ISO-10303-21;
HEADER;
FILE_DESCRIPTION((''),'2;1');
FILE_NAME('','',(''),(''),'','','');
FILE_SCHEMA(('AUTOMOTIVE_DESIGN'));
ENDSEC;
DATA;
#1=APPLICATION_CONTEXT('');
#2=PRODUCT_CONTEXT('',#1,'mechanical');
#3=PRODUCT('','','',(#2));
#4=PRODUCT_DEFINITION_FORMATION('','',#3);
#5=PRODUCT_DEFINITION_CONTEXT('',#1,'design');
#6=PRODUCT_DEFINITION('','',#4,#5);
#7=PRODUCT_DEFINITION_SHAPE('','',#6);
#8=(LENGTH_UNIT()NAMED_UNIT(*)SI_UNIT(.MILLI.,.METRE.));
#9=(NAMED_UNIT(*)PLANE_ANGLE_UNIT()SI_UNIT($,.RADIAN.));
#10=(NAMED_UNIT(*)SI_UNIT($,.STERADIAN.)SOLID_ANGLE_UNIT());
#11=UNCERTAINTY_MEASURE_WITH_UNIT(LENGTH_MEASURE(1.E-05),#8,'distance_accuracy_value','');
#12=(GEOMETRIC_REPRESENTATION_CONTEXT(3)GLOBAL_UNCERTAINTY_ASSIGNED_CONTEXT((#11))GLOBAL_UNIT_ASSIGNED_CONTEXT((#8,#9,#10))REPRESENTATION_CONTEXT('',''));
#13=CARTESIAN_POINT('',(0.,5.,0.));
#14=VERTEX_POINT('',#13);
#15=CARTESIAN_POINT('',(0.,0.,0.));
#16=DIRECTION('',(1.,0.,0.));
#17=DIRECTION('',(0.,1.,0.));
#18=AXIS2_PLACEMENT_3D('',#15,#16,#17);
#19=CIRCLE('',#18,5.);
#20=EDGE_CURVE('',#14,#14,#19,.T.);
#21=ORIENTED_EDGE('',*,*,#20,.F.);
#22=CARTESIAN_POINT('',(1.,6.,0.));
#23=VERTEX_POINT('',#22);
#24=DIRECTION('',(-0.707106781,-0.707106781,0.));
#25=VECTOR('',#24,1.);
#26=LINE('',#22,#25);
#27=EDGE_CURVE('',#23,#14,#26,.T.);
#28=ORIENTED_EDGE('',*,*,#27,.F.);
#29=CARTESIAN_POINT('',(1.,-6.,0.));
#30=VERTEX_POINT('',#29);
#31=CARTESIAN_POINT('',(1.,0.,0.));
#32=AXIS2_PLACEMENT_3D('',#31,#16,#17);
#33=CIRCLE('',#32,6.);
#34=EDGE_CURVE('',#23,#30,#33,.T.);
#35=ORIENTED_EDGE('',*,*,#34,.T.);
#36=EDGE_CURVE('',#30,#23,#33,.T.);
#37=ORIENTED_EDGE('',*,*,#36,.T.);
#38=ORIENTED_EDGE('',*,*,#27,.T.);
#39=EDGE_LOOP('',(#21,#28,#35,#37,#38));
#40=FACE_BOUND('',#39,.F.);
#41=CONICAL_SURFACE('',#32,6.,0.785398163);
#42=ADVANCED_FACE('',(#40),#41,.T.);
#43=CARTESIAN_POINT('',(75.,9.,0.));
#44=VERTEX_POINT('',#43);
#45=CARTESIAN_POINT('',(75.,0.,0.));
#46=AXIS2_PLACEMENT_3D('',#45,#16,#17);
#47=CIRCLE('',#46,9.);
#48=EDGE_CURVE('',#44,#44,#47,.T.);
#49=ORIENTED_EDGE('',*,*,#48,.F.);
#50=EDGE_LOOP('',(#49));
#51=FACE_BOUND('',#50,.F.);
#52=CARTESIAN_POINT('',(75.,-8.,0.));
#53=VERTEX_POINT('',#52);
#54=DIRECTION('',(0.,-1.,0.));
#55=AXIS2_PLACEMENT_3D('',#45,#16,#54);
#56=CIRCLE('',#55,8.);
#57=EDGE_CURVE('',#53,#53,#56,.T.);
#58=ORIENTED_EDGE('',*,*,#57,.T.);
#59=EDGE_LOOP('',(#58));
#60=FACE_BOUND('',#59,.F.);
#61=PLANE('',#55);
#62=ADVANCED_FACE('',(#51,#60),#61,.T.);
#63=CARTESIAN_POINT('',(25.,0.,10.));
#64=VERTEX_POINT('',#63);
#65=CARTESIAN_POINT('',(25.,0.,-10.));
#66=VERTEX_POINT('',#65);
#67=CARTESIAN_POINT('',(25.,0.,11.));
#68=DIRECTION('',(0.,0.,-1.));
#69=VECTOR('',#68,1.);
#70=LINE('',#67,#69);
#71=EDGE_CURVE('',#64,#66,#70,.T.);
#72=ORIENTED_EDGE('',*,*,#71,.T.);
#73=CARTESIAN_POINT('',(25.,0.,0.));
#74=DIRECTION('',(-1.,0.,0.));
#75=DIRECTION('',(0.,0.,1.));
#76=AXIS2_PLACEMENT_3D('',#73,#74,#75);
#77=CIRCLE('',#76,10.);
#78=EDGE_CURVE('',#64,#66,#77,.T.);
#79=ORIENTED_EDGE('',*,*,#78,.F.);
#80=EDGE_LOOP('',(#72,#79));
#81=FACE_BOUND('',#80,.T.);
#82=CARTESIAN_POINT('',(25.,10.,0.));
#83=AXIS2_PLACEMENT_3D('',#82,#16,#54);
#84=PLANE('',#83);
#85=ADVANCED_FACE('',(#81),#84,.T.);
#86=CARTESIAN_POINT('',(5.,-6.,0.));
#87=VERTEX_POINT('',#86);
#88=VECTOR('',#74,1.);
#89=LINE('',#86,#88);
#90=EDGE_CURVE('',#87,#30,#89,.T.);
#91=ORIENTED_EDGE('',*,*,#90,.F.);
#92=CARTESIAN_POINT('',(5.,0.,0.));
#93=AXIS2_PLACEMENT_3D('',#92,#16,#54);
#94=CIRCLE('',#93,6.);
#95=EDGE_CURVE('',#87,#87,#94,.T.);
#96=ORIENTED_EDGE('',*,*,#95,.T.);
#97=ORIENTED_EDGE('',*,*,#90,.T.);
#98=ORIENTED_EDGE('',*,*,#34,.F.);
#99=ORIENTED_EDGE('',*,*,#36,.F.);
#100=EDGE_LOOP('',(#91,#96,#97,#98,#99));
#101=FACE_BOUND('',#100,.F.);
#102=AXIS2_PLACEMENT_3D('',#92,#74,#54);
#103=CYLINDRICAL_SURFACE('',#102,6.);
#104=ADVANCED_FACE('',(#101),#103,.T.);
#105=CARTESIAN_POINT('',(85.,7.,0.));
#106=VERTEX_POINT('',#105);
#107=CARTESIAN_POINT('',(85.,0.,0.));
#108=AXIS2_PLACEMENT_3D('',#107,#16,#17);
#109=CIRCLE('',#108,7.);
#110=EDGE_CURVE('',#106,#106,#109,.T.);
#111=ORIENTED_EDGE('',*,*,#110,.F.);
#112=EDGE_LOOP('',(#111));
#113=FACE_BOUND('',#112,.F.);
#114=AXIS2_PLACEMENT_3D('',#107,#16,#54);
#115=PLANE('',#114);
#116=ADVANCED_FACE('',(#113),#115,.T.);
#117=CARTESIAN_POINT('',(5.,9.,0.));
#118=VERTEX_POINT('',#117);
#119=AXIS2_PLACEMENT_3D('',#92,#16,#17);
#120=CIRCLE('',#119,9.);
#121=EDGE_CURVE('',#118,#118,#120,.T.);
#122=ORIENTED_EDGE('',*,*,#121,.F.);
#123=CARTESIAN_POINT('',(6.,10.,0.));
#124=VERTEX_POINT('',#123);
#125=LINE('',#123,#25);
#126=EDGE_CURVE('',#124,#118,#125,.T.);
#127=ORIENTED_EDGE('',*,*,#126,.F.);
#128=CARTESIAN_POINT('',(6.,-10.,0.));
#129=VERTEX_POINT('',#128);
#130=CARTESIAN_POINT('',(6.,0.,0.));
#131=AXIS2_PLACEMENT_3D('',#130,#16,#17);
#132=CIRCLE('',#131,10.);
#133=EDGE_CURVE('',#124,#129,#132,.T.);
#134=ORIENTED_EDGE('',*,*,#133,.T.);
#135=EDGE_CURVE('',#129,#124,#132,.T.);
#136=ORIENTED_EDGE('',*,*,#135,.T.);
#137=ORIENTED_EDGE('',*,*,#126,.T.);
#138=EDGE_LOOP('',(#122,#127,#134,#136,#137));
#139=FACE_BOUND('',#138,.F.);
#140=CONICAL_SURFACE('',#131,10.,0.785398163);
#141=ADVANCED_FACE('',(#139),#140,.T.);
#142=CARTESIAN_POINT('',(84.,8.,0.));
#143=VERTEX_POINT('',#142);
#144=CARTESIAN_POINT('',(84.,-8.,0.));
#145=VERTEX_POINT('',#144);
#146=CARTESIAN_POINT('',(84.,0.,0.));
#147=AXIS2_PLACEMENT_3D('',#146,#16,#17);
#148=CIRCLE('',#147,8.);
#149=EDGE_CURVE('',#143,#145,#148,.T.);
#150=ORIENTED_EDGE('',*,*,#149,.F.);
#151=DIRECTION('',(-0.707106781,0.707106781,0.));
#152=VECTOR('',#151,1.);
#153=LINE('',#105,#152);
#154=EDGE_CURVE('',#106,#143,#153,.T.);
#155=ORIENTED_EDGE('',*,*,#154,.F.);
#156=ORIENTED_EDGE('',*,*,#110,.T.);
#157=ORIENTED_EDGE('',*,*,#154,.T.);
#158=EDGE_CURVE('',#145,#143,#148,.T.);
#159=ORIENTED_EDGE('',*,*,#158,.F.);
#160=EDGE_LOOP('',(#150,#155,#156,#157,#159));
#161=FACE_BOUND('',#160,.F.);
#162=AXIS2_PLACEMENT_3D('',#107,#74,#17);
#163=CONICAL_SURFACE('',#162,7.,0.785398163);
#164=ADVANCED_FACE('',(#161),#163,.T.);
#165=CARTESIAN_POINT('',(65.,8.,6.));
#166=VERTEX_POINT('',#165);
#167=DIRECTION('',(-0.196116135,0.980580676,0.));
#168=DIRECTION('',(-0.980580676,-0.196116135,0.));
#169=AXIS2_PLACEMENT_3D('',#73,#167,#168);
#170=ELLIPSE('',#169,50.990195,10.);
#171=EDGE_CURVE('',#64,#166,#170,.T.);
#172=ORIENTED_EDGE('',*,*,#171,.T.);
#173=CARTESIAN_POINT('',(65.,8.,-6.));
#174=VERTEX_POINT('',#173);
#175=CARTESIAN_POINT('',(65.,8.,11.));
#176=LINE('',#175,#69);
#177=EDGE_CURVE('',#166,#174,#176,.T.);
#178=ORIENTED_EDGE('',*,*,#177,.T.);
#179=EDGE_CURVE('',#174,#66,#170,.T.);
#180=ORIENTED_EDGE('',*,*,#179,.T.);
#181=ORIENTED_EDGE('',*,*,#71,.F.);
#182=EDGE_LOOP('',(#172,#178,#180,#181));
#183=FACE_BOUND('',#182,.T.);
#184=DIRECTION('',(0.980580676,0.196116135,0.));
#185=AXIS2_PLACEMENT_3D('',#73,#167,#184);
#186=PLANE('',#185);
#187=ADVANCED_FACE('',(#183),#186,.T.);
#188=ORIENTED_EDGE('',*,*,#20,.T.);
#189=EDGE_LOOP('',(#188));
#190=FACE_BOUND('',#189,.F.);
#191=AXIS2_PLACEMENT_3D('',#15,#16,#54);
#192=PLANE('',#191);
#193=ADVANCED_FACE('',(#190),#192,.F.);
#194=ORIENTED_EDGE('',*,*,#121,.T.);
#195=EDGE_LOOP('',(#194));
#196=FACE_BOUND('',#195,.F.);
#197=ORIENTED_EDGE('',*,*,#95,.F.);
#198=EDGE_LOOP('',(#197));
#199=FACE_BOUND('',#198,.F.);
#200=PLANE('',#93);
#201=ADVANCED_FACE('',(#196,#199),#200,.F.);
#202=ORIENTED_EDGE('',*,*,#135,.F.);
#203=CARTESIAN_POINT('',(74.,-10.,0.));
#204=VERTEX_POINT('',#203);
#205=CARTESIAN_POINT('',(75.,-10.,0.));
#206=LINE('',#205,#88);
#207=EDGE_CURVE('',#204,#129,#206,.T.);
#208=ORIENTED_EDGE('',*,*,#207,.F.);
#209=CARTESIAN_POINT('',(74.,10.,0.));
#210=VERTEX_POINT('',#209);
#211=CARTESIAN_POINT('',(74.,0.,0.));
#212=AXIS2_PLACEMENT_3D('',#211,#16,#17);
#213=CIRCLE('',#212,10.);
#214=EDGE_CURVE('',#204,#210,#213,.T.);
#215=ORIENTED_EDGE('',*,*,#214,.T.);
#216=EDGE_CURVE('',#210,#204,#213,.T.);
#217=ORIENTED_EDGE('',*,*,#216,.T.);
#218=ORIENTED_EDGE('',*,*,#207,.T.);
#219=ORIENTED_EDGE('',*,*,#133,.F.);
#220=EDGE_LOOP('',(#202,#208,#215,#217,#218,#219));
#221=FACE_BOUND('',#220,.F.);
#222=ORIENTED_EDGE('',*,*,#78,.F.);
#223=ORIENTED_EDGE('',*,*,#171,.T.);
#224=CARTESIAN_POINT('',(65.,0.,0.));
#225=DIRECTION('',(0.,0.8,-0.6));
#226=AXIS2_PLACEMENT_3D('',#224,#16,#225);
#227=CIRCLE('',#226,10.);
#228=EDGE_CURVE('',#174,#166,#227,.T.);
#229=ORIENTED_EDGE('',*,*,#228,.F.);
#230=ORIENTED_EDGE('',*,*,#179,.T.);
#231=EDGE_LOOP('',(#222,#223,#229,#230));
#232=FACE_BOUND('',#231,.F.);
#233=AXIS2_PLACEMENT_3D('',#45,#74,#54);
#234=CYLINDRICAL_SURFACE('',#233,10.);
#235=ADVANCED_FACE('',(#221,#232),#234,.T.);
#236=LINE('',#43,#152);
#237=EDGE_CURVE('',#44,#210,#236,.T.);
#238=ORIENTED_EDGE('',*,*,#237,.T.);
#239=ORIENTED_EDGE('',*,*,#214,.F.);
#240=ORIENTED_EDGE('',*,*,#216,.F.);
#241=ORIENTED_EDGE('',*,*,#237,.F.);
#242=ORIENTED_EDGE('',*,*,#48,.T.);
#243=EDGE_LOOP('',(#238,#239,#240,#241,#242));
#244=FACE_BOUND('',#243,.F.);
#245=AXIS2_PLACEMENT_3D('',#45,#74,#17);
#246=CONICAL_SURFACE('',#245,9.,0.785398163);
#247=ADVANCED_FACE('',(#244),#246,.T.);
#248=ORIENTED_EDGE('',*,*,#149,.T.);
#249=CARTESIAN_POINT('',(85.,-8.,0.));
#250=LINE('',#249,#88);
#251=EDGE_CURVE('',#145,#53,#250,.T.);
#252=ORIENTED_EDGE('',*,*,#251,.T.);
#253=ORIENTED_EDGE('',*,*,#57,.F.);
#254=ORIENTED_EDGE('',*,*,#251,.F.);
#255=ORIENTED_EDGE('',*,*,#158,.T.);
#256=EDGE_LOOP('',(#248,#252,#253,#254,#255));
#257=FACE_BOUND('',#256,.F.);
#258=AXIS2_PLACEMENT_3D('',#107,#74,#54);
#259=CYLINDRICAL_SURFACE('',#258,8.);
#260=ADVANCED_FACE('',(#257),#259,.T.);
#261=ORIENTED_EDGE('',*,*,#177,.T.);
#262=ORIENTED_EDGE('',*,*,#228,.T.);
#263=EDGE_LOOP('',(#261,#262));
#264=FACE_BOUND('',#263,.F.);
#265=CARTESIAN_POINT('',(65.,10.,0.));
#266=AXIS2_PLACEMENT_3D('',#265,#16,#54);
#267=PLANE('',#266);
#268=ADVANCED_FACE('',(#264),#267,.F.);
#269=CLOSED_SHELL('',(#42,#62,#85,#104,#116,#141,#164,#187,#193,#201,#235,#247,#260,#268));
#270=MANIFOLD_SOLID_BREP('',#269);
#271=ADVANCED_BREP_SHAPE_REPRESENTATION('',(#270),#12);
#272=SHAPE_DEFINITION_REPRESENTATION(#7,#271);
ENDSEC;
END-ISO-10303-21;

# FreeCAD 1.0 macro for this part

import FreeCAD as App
import Part
import Sketcher
Q = App.Units.Quantity

doc = App.newDocument("Part")
body = doc.addObject("PartDesign::Body", "Body")

sketch1 = doc.addObject("Sketcher::SketchObject", "Sketch")
body.addObject(sketch1)
sketch1.AttachmentSupport = (doc.XY_Plane, [""])
sketch1.MapMode = "FlatFace"
sketch1.addGeometry(Part.LineSegment(App.Vector(0, 0, 0), App.Vector(0, -6, 0)), False)
sketch1.addGeometry(Part.LineSegment(App.Vector(0, -6, 0), App.Vector(5, -6, 0)), False)
sketch1.addGeometry(Part.LineSegment(App.Vector(5, -6, 0), App.Vector(5, -10, 0)), False)
sketch1.addGeometry(Part.LineSegment(App.Vector(5, -10, 0), App.Vector(75, -10, 0)), False)
sketch1.addGeometry(Part.LineSegment(App.Vector(75, -10, 0), App.Vector(75, -8, 0)), False)
sketch1.addGeometry(Part.LineSegment(App.Vector(75, -8, 0), App.Vector(85, -8, 0)), False)
sketch1.addGeometry(Part.LineSegment(App.Vector(85, -8, 0), App.Vector(85, 0, 0)), False)
sketch1.addGeometry(Part.LineSegment(App.Vector(85, 0, 0), App.Vector(0, 0, 0)), False)
sketch1.addConstraint(Sketcher.Constraint("Coincident", 0, 2, 1, 1))
sketch1.addConstraint(Sketcher.Constraint("Coincident", 1, 2, 2, 1))
sketch1.addConstraint(Sketcher.Constraint("Coincident", 2, 2, 3, 1))
sketch1.addConstraint(Sketcher.Constraint("Coincident", 3, 2, 4, 1))
sketch1.addConstraint(Sketcher.Constraint("Coincident", 4, 2, 5, 1))
sketch1.addConstraint(Sketcher.Constraint("Coincident", 5, 2, 6, 1))
sketch1.addConstraint(Sketcher.Constraint("Coincident", 6, 2, 7, 1))
sketch1.addConstraint(Sketcher.Constraint("Coincident", 7, 2, 0, 1))
sketch1.addConstraint(Sketcher.Constraint("Vertical", 0))
sketch1.addConstraint(Sketcher.Constraint("Horizontal", 1))
sketch1.addConstraint(Sketcher.Constraint("Vertical", 2))
sketch1.addConstraint(Sketcher.Constraint("Horizontal", 3))
sketch1.addConstraint(Sketcher.Constraint("Vertical", 4))
sketch1.addConstraint(Sketcher.Constraint("Horizontal", 5))
sketch1.addConstraint(Sketcher.Constraint("Vertical", 6))
sketch1.addConstraint(Sketcher.Constraint("Horizontal", 7))
sketch1.addConstraint(Sketcher.Constraint("Coincident", 7, 2, -1, 1))
sketch1.addConstraint(Sketcher.Constraint("DistanceX", 1, 1, 1, 2, Q("5 mm")))
sketch1.addConstraint(Sketcher.Constraint("DistanceX", 3, 1, 3, 2, Q("70 mm")))
sketch1.addConstraint(Sketcher.Constraint("DistanceX", 5, 1, 5, 2, Q("10 mm")))
sketch1.addConstraint(Sketcher.Constraint("DistanceY", 0, 2, 0, 1, Q("6 mm")))
sketch1.addConstraint(Sketcher.Constraint("DistanceY", 6, 1, 6, 2, Q("8 mm")))
sketch1.addConstraint(Sketcher.Constraint("DistanceY", 2, 2, -1, 1, Q("10 mm")))
revolution = doc.addObject("PartDesign::Revolution", "Revolution")
body.addObject(revolution)
revolution.Profile = sketch1
revolution.ReferenceAxis = (sketch1, ["H_Axis"])
revolution.Angle = 360

sketch2 = doc.addObject("Sketcher::SketchObject", "Sketch001")
body.addObject(sketch2)
sketch2.AttachmentSupport = (doc.XY_Plane, [""])
sketch2.MapMode = "FlatFace"
sketch2.addGeometry(Part.LineSegment(App.Vector(5, 10, 0), App.Vector(5, 9, 0)), False)
sketch2.addGeometry(Part.LineSegment(App.Vector(5, 9, 0), App.Vector(6, 10, 0)), False)
sketch2.addGeometry(Part.LineSegment(App.Vector(6, 10, 0), App.Vector(5, 10, 0)), False)
sketch2.addGeometry(Part.LineSegment(App.Vector(74, 10, 0), App.Vector(75, 9, 0)), False)
sketch2.addGeometry(Part.LineSegment(App.Vector(75, 9, 0), App.Vector(75, 10, 0)), False)
sketch2.addGeometry(Part.LineSegment(App.Vector(75, 10, 0), App.Vector(74, 10, 0)), False)
sketch2.addGeometry(Part.LineSegment(App.Vector(84, 8, 0), App.Vector(85, 7, 0)), False)
sketch2.addGeometry(Part.LineSegment(App.Vector(85, 7, 0), App.Vector(85, 8, 0)), False)
sketch2.addGeometry(Part.LineSegment(App.Vector(85, 8, 0), App.Vector(84, 8, 0)), False)
sketch2.addGeometry(Part.LineSegment(App.Vector(0, 5, 0), App.Vector(1, 6, 0)), False)
sketch2.addGeometry(Part.LineSegment(App.Vector(1, 6, 0), App.Vector(0, 6, 0)), False)
sketch2.addGeometry(Part.LineSegment(App.Vector(0, 6, 0), App.Vector(0, 5, 0)), False)
sketch2.addConstraint(Sketcher.Constraint("Coincident", 0, 2, 1, 1))
sketch2.addConstraint(Sketcher.Constraint("Coincident", 1, 2, 2, 1))
sketch2.addConstraint(Sketcher.Constraint("Coincident", 2, 2, 0, 1))
sketch2.addConstraint(Sketcher.Constraint("Coincident", 3, 2, 4, 1))
sketch2.addConstraint(Sketcher.Constraint("Coincident", 4, 2, 5, 1))
sketch2.addConstraint(Sketcher.Constraint("Coincident", 5, 2, 3, 1))
sketch2.addConstraint(Sketcher.Constraint("Coincident", 6, 2, 7, 1))
sketch2.addConstraint(Sketcher.Constraint("Coincident", 7, 2, 8, 1))
sketch2.addConstraint(Sketcher.Constraint("Coincident", 8, 2, 6, 1))
sketch2.addConstraint(Sketcher.Constraint("Coincident", 9, 2, 10, 1))
sketch2.addConstraint(Sketcher.Constraint("Coincident", 10, 2, 11, 1))
sketch2.addConstraint(Sketcher.Constraint("Coincident", 11, 2, 9, 1))
sketch2.addConstraint(Sketcher.Constraint("Vertical", 0))
sketch2.addConstraint(Sketcher.Constraint("Horizontal", 2))
sketch2.addConstraint(Sketcher.Constraint("Vertical", 4))
sketch2.addConstraint(Sketcher.Constraint("Horizontal", 5))
sketch2.addConstraint(Sketcher.Constraint("Vertical", 7))
sketch2.addConstraint(Sketcher.Constraint("Horizontal", 8))
sketch2.addConstraint(Sketcher.Constraint("Horizontal", 10))
sketch2.addConstraint(Sketcher.Constraint("Vertical", 11))
sketch2.addConstraint(Sketcher.Constraint("PointOnObject", 10, 2, -2))
sketch2.addConstraint(Sketcher.Constraint("Perpendicular", 1, 3))
sketch2.addConstraint(Sketcher.Constraint("Parallel", 3, 6))
sketch2.addConstraint(Sketcher.Constraint("Perpendicular", 6, 9))
sketch2.addConstraint(Sketcher.Constraint("Horizontal", 0, 2, 3, 2))
sketch2.addConstraint(Sketcher.Constraint("Horizontal", 2, 2, 4, 2))
sketch2.addConstraint(Sketcher.Constraint("Equal", 2, 5))
sketch2.addConstraint(Sketcher.Constraint("Equal", 5, 8))
sketch2.addConstraint(Sketcher.Constraint("Equal", 8, 10))
sketch2.addConstraint(Sketcher.Constraint("DistanceX", 2, 2, 2, 1, Q("1 mm")))
sketch2.addConstraint(Sketcher.Constraint("DistanceY", 7, 2, 3, 2, Q("1 mm")))
sketch2.addConstraint(Sketcher.Constraint("DistanceX", -1, 1, 0, 2, Q("5 mm")))
sketch2.addConstraint(Sketcher.Constraint("DistanceY", -1, 1, 0, 2, Q("9 mm")))
sketch2.addConstraint(Sketcher.Constraint("DistanceX", -1, 1, 3, 2, Q("75 mm")))
sketch2.addConstraint(Sketcher.Constraint("DistanceX", -1, 1, 6, 2, Q("85 mm")))
sketch2.addConstraint(Sketcher.Constraint("DistanceY", -1, 1, 9, 2, Q("6 mm")))
groove = doc.addObject("PartDesign::Groove", "Groove")
body.addObject(groove)
groove.Profile = sketch2
groove.ReferenceAxis = (sketch2, ["H_Axis"])
groove.Angle = 360

sketch3 = doc.addObject("Sketcher::SketchObject", "Sketch002")
body.addObject(sketch3)
sketch3.AttachmentSupport = (doc.XY_Plane, [""])
sketch3.MapMode = "FlatFace"
sketch3.addGeometry(Part.LineSegment(App.Vector(65, 8, 0), App.Vector(65, 10, 0)), False)
sketch3.addGeometry(Part.LineSegment(App.Vector(65, 10, 0), App.Vector(25, 10, 0)), False)
sketch3.addGeometry(Part.LineSegment(App.Vector(25, 10, 0), App.Vector(25, 0, 0)), False)
sketch3.addGeometry(Part.LineSegment(App.Vector(25, 0, 0), App.Vector(65, 8, 0)), False)
sketch3.addConstraint(Sketcher.Constraint("Coincident", 0, 2, 1, 1))
sketch3.addConstraint(Sketcher.Constraint("Coincident", 1, 2, 2, 1))
sketch3.addConstraint(Sketcher.Constraint("Coincident", 2, 2, 3, 1))
sketch3.addConstraint(Sketcher.Constraint("Coincident", 3, 2, 0, 1))
sketch3.addConstraint(Sketcher.Constraint("Vertical", 0))
sketch3.addConstraint(Sketcher.Constraint("Horizontal", 1))
sketch3.addConstraint(Sketcher.Constraint("Vertical", 2))
sketch3.addConstraint(Sketcher.Constraint("PointOnObject", 2, 2, -1))
sketch3.addConstraint(Sketcher.Constraint("DistanceY", 0, 1, 0, 2, Q("2 mm")))
sketch3.addConstraint(Sketcher.Constraint("DistanceY", 2, 2, 2, 1, Q("10 mm")))
sketch3.addConstraint(Sketcher.Constraint("DistanceX", 1, 2, 1, 1, Q("40 mm")))
sketch3.addConstraint(Sketcher.Constraint("DistanceX", -1, 1, 0, 2, Q("65 mm")))
pocket1 = doc.addObject("PartDesign::Pocket", "Pocket")
body.addObject(pocket1)
pocket1.Profile = sketch3
pocket1.Type = "ThroughAll"
pocket1.Midplane = True

doc.recompute()
